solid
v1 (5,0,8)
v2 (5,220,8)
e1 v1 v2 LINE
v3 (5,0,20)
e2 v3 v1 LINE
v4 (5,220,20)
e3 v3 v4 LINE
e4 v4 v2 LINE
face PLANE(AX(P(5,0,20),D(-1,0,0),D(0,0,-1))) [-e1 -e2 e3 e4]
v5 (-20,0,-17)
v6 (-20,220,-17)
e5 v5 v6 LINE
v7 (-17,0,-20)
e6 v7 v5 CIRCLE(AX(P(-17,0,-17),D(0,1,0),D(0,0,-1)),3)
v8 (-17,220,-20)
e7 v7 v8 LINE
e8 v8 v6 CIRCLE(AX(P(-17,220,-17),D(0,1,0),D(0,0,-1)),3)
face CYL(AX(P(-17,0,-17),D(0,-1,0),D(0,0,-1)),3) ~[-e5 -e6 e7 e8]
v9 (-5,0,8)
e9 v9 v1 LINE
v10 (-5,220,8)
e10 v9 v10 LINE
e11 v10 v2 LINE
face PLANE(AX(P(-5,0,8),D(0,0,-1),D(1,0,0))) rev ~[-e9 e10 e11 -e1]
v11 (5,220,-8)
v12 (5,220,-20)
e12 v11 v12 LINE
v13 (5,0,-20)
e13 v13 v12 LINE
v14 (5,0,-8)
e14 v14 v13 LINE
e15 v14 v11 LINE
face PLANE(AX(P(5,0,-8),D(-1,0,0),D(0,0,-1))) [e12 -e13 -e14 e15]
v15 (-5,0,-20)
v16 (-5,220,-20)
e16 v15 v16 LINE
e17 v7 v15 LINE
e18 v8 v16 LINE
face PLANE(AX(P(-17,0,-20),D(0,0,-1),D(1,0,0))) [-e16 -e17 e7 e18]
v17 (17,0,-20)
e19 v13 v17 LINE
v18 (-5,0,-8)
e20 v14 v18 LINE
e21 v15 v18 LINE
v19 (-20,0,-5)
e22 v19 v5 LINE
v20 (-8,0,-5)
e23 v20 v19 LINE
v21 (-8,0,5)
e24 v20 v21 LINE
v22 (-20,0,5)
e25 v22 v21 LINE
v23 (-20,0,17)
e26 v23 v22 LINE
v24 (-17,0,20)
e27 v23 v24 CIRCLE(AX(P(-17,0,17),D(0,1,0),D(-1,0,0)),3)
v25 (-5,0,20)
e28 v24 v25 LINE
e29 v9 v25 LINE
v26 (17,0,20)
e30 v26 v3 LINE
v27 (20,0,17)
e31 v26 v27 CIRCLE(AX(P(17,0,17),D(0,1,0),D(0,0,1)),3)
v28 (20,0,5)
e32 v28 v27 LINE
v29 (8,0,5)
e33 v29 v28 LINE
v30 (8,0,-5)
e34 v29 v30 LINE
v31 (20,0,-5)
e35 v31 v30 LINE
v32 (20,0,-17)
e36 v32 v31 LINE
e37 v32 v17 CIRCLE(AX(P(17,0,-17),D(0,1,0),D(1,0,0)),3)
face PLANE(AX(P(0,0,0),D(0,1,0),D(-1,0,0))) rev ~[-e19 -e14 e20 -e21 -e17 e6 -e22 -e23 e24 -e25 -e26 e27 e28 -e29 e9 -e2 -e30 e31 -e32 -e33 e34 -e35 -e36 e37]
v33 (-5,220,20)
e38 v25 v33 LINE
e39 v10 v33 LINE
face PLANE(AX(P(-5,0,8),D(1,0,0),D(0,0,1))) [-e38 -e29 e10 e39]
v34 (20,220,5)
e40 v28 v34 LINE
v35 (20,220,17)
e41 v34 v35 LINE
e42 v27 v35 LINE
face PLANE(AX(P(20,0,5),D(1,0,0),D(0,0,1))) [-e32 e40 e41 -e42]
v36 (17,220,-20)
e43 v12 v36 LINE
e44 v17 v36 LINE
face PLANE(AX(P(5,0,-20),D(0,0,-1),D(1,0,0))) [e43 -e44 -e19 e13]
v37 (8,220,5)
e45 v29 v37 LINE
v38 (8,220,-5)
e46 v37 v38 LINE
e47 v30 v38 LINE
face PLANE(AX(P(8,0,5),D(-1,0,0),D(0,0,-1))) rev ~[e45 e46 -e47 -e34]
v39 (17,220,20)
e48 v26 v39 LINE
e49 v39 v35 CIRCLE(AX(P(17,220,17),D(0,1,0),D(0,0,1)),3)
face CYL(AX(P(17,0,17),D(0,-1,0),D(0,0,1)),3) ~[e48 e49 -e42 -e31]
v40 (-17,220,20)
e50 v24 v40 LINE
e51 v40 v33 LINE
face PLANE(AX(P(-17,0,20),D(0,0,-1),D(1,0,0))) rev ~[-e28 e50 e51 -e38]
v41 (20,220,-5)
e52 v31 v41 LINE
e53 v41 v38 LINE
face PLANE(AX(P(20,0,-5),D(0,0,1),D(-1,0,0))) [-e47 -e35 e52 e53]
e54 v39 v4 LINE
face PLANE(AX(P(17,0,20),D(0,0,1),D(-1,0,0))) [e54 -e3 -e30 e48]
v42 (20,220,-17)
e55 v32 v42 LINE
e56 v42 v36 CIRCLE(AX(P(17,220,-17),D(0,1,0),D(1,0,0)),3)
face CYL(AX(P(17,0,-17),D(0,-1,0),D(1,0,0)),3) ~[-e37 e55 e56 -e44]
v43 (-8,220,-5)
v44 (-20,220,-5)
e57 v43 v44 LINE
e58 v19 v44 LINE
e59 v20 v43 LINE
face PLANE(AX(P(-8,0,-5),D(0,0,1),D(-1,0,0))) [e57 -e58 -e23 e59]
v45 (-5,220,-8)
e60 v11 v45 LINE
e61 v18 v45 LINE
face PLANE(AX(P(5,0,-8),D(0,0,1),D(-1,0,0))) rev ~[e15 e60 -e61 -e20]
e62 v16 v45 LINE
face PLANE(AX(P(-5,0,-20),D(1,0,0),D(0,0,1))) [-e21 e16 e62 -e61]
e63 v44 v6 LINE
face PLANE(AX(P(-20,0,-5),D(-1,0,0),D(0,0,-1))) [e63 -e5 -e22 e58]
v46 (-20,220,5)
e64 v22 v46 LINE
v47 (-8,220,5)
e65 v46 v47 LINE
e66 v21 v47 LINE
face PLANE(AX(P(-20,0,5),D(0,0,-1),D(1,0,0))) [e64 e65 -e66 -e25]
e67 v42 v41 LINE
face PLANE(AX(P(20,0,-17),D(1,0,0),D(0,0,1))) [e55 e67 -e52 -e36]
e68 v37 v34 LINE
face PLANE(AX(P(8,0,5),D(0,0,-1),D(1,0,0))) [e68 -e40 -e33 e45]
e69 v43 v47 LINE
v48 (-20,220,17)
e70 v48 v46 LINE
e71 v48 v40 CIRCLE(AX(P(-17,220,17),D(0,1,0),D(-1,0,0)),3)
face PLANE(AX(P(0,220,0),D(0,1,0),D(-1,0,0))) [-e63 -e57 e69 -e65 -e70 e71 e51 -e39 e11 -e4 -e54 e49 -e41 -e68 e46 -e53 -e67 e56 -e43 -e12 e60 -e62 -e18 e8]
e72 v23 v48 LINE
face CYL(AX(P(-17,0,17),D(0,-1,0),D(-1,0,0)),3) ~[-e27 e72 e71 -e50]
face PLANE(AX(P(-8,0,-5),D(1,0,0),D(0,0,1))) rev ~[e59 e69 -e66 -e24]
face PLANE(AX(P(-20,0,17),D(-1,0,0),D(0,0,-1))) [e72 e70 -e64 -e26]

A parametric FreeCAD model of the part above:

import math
import FreeCAD as App
import Part
import Sketcher
from FreeCAD import Vector
Q = App.Units.Quantity

doc = App.newDocument("Part")
body = doc.addObject("PartDesign::Body", "Body")

# Sketch on XZ plane
sketch1 = body.newObject("Sketcher::SketchObject", "Sketch")
sketch1.AttachmentSupport = (doc.getObject("XZ_Plane"), [""])
sketch1.MapMode = "FlatFace"
sketch1.addGeometry([
    Part.LineSegment(Vector(5, 8, 0), Vector(5, 20, 0)),  # 0
    Part.LineSegment(Vector(5, 20, 0), Vector(17, 20, 0)),  # 1
    Part.ArcOfCircle(Part.Circle(Vector(17, 17, 0), Vector(0, 0, 1), 3), math.radians(0), math.radians(90)),  # 2
    Part.LineSegment(Vector(20, 17, 0), Vector(20, 5, 0)),  # 3
    Part.LineSegment(Vector(20, 5, 0), Vector(8, 5, 0)),  # 4
    Part.LineSegment(Vector(8, 5, 0), Vector(8, -5, 0)),  # 5
    Part.LineSegment(Vector(8, -5, 0), Vector(20, -5, 0)),  # 6
    Part.LineSegment(Vector(20, -5, 0), Vector(20, -17, 0)),  # 7
    Part.ArcOfCircle(Part.Circle(Vector(17, -17, 0), Vector(0, 0, 1), 3), math.radians(-90), math.radians(0)),  # 8
    Part.LineSegment(Vector(17, -20, 0), Vector(5, -20, 0)),  # 9
    Part.LineSegment(Vector(5, -20, 0), Vector(5, -8, 0)),  # 10
    Part.LineSegment(Vector(5, -8, 0), Vector(-5, -8, 0)),  # 11
    Part.LineSegment(Vector(-5, -8, 0), Vector(-5, -20, 0)),  # 12
    Part.LineSegment(Vector(-5, -20, 0), Vector(-17, -20, 0)),  # 13
    Part.ArcOfCircle(Part.Circle(Vector(-17, -17, 0), Vector(0, 0, 1), 3), math.radians(180), math.radians(270)),  # 14
    Part.LineSegment(Vector(-20, -17, 0), Vector(-20, -5, 0)),  # 15
    Part.LineSegment(Vector(-20, -5, 0), Vector(-8, -5, 0)),  # 16
    Part.LineSegment(Vector(-8, -5, 0), Vector(-8, 5, 0)),  # 17
    Part.LineSegment(Vector(-8, 5, 0), Vector(-20, 5, 0)),  # 18
    Part.LineSegment(Vector(-20, 5, 0), Vector(-20, 17, 0)),  # 19
    Part.ArcOfCircle(Part.Circle(Vector(-17, 17, 0), Vector(0, 0, 1), 3), math.radians(90), math.radians(180)),  # 20
    Part.LineSegment(Vector(-17, 20, 0), Vector(-5, 20, 0)),  # 21
    Part.LineSegment(Vector(-5, 20, 0), Vector(-5, 8, 0)),  # 22
    Part.LineSegment(Vector(-5, 8, 0), Vector(5, 8, 0)),  # 23
], False)
sketch1.addConstraint([
    Sketcher.Constraint("Coincident", 0, 2, 1, 1),
    Sketcher.Constraint("Tangent", 1, 2, 2, 2),
    Sketcher.Constraint("Tangent", 2, 1, 3, 1),
    Sketcher.Constraint("Coincident", 3, 2, 4, 1),
    Sketcher.Constraint("Coincident", 4, 2, 5, 1),
    Sketcher.Constraint("Coincident", 5, 2, 6, 1),
    Sketcher.Constraint("Coincident", 6, 2, 7, 1),
    Sketcher.Constraint("Tangent", 7, 2, 8, 2),
    Sketcher.Constraint("Tangent", 8, 1, 9, 1),
    Sketcher.Constraint("Coincident", 9, 2, 10, 1),
    Sketcher.Constraint("Coincident", 10, 2, 11, 1),
    Sketcher.Constraint("Coincident", 11, 2, 12, 1),
    Sketcher.Constraint("Coincident", 12, 2, 13, 1),
    Sketcher.Constraint("Tangent", 13, 2, 14, 2),
    Sketcher.Constraint("Tangent", 14, 1, 15, 1),
    Sketcher.Constraint("Coincident", 15, 2, 16, 1),
    Sketcher.Constraint("Coincident", 16, 2, 17, 1),
    Sketcher.Constraint("Coincident", 17, 2, 18, 1),
    Sketcher.Constraint("Coincident", 18, 2, 19, 1),
    Sketcher.Constraint("Tangent", 19, 2, 20, 2),
    Sketcher.Constraint("Tangent", 20, 1, 21, 1),
    Sketcher.Constraint("Coincident", 21, 2, 22, 1),
    Sketcher.Constraint("Coincident", 22, 2, 23, 1),
    Sketcher.Constraint("Coincident", 23, 2, 0, 1),
    Sketcher.Constraint("Vertical", 0),
    Sketcher.Constraint("Horizontal", 1),
    Sketcher.Constraint("Vertical", 3),
    Sketcher.Constraint("Horizontal", 4),
    Sketcher.Constraint("Vertical", 5),
    Sketcher.Constraint("Horizontal", 6),
    Sketcher.Constraint("Vertical", 7),
    Sketcher.Constraint("Horizontal", 9),
    Sketcher.Constraint("Vertical", 10),
    Sketcher.Constraint("Horizontal", 11),
    Sketcher.Constraint("Vertical", 12),
    Sketcher.Constraint("Horizontal", 13),
    Sketcher.Constraint("Vertical", 15),
    Sketcher.Constraint("Horizontal", 16),
    Sketcher.Constraint("Vertical", 17),
    Sketcher.Constraint("Horizontal", 18),
    Sketcher.Constraint("Vertical", 19),
    Sketcher.Constraint("Horizontal", 21),
    Sketcher.Constraint("Vertical", 22),
    Sketcher.Constraint("Horizontal", 23),
    Sketcher.Constraint("Equal", 2, 8),
    Sketcher.Constraint("Equal", 8, 14),
    Sketcher.Constraint("Equal", 14, 20),
    Sketcher.Constraint("Symmetric", 2, 3, 14, 3, -1, 1),
    Sketcher.Constraint("Symmetric", 8, 3, 20, 3, -1, 1),
    Sketcher.Constraint("Symmetric", 4, 2, 16, 2, -1, 1),
    Sketcher.Constraint("Symmetric", 10, 2, 22, 2, -1, 1),
    Sketcher.Constraint("Symmetric", 8, 3, 14, 3, -2),
    Sketcher.Constraint("Horizontal", 6, 2, 15, 2),
    Sketcher.Constraint("Horizontal", 4, 2, 17, 2),
    Sketcher.Constraint("Vertical", 0, 2, 9, 2),
    Sketcher.Constraint("Vertical", 12, 2, 21, 2),
    Sketcher.Constraint("Equal", 1, 4),
    Sketcher.Constraint("Equal", 21, 0),
    Sketcher.Constraint("Equal", 0, 3),
    Sketcher.Constraint("Equal", 23, 5),
    Sketcher.Constraint("Radius", 2, Q("3 mm")),
    Sketcher.Constraint("DistanceX", 1, 1, 1, 2, Q("12 mm")),
    Sketcher.Constraint("DistanceX", 11, 2, 11, 1, Q("10 mm")),
])
pad1 = body.newObject("PartDesign::Pad", "Pad")
pad1.Profile = sketch1
pad1.Length = 220
pad1.Reversed = True

doc.recompute()
